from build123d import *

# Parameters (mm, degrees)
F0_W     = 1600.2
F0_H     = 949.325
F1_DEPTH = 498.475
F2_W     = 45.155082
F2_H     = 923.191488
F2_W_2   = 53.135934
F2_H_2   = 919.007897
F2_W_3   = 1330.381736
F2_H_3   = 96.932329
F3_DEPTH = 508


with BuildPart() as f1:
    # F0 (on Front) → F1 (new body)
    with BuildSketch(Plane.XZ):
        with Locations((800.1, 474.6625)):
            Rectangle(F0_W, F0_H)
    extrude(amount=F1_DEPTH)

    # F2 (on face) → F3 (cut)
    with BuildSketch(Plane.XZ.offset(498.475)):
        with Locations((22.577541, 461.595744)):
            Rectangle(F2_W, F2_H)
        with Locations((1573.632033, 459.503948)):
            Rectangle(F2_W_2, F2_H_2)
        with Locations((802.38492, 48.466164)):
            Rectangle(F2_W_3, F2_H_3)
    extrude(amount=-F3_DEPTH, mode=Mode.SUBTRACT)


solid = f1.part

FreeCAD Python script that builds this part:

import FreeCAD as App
import Part
import Sketcher

V = App.Vector
Q = App.Units.Quantity

doc = App.newDocument("Part")
body = doc.addObject("PartDesign::Body", "Body")

# Sketch on XZ plane
sketch1 = body.newObject("Sketcher::SketchObject", "Sketch")
sketch1.AttachmentSupport = (doc.getObject("XZ_Plane"), [""])
sketch1.MapMode = "FlatFace"
sketch1.addGeometry([
    Part.LineSegment(V(0, 949, 0), V(0, 0, 0)),
    Part.LineSegment(V(0, 0, 0), V(1600, 0, 0)),
    Part.LineSegment(V(1600, 0, 0), V(1600, 949, 0)),
    Part.LineSegment(V(1600, 949, 0), V(0, 949, 0)),
], False)
sketch1.addConstraint([
    Sketcher.Constraint("Coincident", 0, 2, 1, 1),
    Sketcher.Constraint("Coincident", 1, 2, 2, 1),
    Sketcher.Constraint("Coincident", 2, 2, 3, 1),
    Sketcher.Constraint("Coincident", 3, 2, 0, 1),
    Sketcher.Constraint("Vertical", 0),
    Sketcher.Constraint("Horizontal", 1),
    Sketcher.Constraint("Vertical", 2),
    Sketcher.Constraint("Horizontal", 3),
    Sketcher.Constraint("Coincident", 0, 2, -1, 1),
    Sketcher.Constraint("DistanceX", 1, 1, 1, 2, Q("63 in")),
    Sketcher.Constraint("DistanceY", 0, 2, 0, 1, Q("37.375 in")),
])
pad1 = body.newObject("PartDesign::Pad", "Pad")
pad1.Profile = sketch1
pad1.Length = Q("19.625 in")

# Sketch on XZ plane
sketch2 = body.newObject("Sketcher::SketchObject", "Sketch001")
sketch2.AttachmentSupport = (doc.getObject("XZ_Plane"), [""])
sketch2.MapMode = "FlatFace"
sketch2.AttachmentOffset = App.Placement(V(0, 0, 19.625 * 25.4), App.Rotation())
sketch2.addGeometry([
    Part.LineSegment(V(0, 923, 0), V(0, 0, 0)),  # 0
    Part.LineSegment(V(0, 0, 0), V(45, 0, 0)),  # 1
    Part.LineSegment(V(45, 0, 0), V(45, 923, 0)),  # 2
    Part.LineSegment(V(45, 923, 0), V(0, 923, 0)),  # 3
    Part.LineSegment(V(1547, 919, 0), V(1547, 0, 0)),  # 4
    Part.LineSegment(V(1547, 0, 0), V(1600, 0, 0)),  # 5
    Part.LineSegment(V(1600, 0, 0), V(1600, 919, 0)),  # 6
    Part.LineSegment(V(1600, 919, 0), V(1547, 919, 0)),  # 7
    Part.LineSegment(V(137, 97, 0), V(137, 0, 0)),  # 8
    Part.LineSegment(V(137, 0, 0), V(1468, 0, 0)),  # 9
    Part.LineSegment(V(1468, 0, 0), V(1468, 97, 0)),  # 10
    Part.LineSegment(V(1468, 97, 0), V(137, 97, 0)),  # 11
], False)
sketch2.addConstraint([
    Sketcher.Constraint("Coincident", 0, 2, 1, 1),
    Sketcher.Constraint("Coincident", 1, 2, 2, 1),
    Sketcher.Constraint("Coincident", 2, 2, 3, 1),
    Sketcher.Constraint("Coincident", 3, 2, 0, 1),
    Sketcher.Constraint("Coincident", 4, 2, 5, 1),
    Sketcher.Constraint("Coincident", 5, 2, 6, 1),
    Sketcher.Constraint("Coincident", 6, 2, 7, 1),
    Sketcher.Constraint("Coincident", 7, 2, 4, 1),
    Sketcher.Constraint("Coincident", 8, 2, 9, 1),
    Sketcher.Constraint("Coincident", 9, 2, 10, 1),
    Sketcher.Constraint("Coincident", 10, 2, 11, 1),
    Sketcher.Constraint("Coincident", 11, 2, 8, 1),
    Sketcher.Constraint("Vertical", 0),
    Sketcher.Constraint("Horizontal", 1),
    Sketcher.Constraint("Vertical", 2),
    Sketcher.Constraint("Horizontal", 3),
    Sketcher.Constraint("Vertical", 4),
    Sketcher.Constraint("Horizontal", 5),
    Sketcher.Constraint("Vertical", 6),
    Sketcher.Constraint("Horizontal", 7),
    Sketcher.Constraint("Vertical", 8),
    Sketcher.Constraint("Horizontal", 9),
    Sketcher.Constraint("Vertical", 10),
    Sketcher.Constraint("Horizontal", 11),
    Sketcher.Constraint("Coincident", 0, 2, -1, 1),
    Sketcher.Constraint("PointOnObject", 4, 2, -1),
    Sketcher.Constraint("PointOnObject", 8, 2, -1),
    Sketcher.Constraint("DistanceX", -1, 1, 5, 2, Q("63 in")),
    Sketcher.Constraint("DistanceY", 0, 2, 0, 1, 923.191488),
    Sketcher.Constraint("DistanceY", 8, 2, 8, 1, 96.932329),
    Sketcher.Constraint("DistanceX", 1, 1, 1, 2, 45.155082),
    Sketcher.Constraint("DistanceX", 5, 1, 5, 2, 53.135934),
    Sketcher.Constraint("DistanceX", 9, 1, 9, 2, 1330.381736),
    Sketcher.Constraint("DistanceY", 4, 2, 4, 1, 919.007897),
    Sketcher.Constraint("DistanceX", -1, 1, 8, 2, 137.194052),
])
pocket1 = body.newObject("PartDesign::Pocket", "Pocket")
pocket1.Profile = sketch2
pocket1.Length = Q("20 in")

doc.recompute()
